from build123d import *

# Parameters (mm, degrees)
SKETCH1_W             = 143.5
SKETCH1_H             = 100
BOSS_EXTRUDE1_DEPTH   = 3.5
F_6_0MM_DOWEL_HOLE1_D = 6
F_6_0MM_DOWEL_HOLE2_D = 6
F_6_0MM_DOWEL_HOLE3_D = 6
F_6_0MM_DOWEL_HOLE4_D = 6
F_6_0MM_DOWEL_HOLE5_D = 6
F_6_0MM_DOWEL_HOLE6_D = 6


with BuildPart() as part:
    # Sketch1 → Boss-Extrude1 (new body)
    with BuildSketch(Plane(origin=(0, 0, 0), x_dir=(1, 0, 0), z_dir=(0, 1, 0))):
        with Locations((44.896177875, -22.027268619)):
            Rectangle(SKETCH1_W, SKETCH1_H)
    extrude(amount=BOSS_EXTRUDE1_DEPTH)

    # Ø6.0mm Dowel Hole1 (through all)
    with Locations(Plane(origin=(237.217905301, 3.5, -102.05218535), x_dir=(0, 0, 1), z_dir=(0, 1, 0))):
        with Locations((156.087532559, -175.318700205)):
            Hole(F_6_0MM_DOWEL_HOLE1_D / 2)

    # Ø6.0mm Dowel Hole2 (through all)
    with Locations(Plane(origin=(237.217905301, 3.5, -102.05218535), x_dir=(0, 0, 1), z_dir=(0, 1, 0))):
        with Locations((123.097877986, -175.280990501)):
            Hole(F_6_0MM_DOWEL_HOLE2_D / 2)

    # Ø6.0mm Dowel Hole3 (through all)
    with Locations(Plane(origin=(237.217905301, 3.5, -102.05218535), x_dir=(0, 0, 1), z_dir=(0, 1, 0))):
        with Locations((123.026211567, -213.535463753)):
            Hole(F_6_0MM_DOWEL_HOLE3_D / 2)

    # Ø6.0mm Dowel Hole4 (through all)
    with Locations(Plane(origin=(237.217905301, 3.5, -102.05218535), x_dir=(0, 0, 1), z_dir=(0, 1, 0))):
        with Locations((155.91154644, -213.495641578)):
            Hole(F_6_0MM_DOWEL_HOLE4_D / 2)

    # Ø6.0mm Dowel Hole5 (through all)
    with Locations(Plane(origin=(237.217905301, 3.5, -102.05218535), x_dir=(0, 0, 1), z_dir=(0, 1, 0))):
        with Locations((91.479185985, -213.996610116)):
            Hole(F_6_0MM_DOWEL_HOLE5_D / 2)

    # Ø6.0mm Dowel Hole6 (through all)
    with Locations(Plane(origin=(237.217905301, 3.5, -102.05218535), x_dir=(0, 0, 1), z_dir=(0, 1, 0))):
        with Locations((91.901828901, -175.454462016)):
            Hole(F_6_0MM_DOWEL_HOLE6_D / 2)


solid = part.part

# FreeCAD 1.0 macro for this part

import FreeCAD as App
import Part
import Sketcher
from FreeCAD import Vector

doc = App.newDocument("Part")
body = doc.addObject("PartDesign::Body", "Body")

sketch1 = doc.addObject("Sketcher::SketchObject", "Sketch")
body.addObject(sketch1)
sketch1.AttachmentSupport = (doc.XZ_Plane, [""])
sketch1.MapMode = "FlatFace"
sketch1.addGeometry(Part.LineSegment(Vector(-27, -28, 0), Vector(-27, 72, 0)), False)
sketch1.addGeometry(Part.LineSegment(Vector(-27, 72, 0), Vector(117, 72, 0)), False)
sketch1.addGeometry(Part.LineSegment(Vector(117, 72, 0), Vector(117, -28, 0)), False)
sketch1.addGeometry(Part.LineSegment(Vector(117, -28, 0), Vector(-27, -28, 0)), False)
sketch1.addConstraint(Sketcher.Constraint("Coincident", 0, 2, 1, 1))
sketch1.addConstraint(Sketcher.Constraint("Coincident", 1, 2, 2, 1))
sketch1.addConstraint(Sketcher.Constraint("Coincident", 2, 2, 3, 1))
sketch1.addConstraint(Sketcher.Constraint("Coincident", 3, 2, 0, 1))
sketch1.addConstraint(Sketcher.Constraint("Vertical", 0))
sketch1.addConstraint(Sketcher.Constraint("Horizontal", 1))
sketch1.addConstraint(Sketcher.Constraint("Vertical", 2))
sketch1.addConstraint(Sketcher.Constraint("Horizontal", 3))
sketch1.addConstraint(Sketcher.Constraint("DistanceY", 0, 1, 0, 2, 100.0))
sketch1.addConstraint(Sketcher.Constraint("DistanceX", 1, 1, 1, 2, 143.5))
sketch1.addConstraint(Sketcher.Constraint("DistanceY", -1, 1, 0, 2, 72.027269))
sketch1.addConstraint(Sketcher.Constraint("DistanceX", 0, 2, -1, 1, 26.853822))
pad1 = doc.addObject("PartDesign::Pad", "Pad")
body.addObject(pad1)
pad1.Profile = sketch1
pad1.Length = 3.5
pad1.Reversed = True

sketch2 = doc.addObject("Sketcher::SketchObject", "Sketch001")
body.addObject(sketch2)
sketch2.AttachmentSupport = (doc.XZ_Plane, [""])
sketch2.MapMode = "FlatFace"
sketch2.AttachmentOffset = App.Placement(Vector(0, 0, -3.5), App.Rotation())
sketch2.addGeometry(Part.Circle(Vector(61.9, 54, 0), Vector(0, 0, 1), 3), False)
sketch2.addConstraint(Sketcher.Constraint("Diameter", 0, 6.0))
sketch2.addConstraint(Sketcher.Constraint("DistanceX", -1, 1, 0, 3, 61.899205))
sketch2.addConstraint(Sketcher.Constraint("DistanceY", -1, 1, 0, 3, 54.035347))
doc.recompute()
hole = doc.addObject("PartDesign::Hole", "Hole")
body.addObject(hole)
hole.Profile = sketch2
hole.ThreadType = "None"
hole.Diameter = 6
hole.DepthType = "ThroughAll"
hole.Reversed = True

sketch3 = doc.addObject("Sketcher::SketchObject", "Sketch002")
body.addObject(sketch3)
sketch3.AttachmentSupport = (doc.XZ_Plane, [""])
sketch3.MapMode = "FlatFace"
sketch3.AttachmentOffset = App.Placement(Vector(0, 0, -3.5), App.Rotation())
sketch3.addGeometry(Part.Circle(Vector(61.9, 21, 0), Vector(0, 0, 1), 3), False)
sketch3.addConstraint(Sketcher.Constraint("Diameter", 0, 6.0))
sketch3.addConstraint(Sketcher.Constraint("DistanceX", -1, 1, 0, 3, 61.936915))
sketch3.addConstraint(Sketcher.Constraint("DistanceY", -1, 1, 0, 3, 21.045693))
doc.recompute()
hole2 = doc.addObject("PartDesign::Hole", "Hole001")
body.addObject(hole2)
hole2.Profile = sketch3
hole2.ThreadType = "None"
hole2.Diameter = 6
hole2.DepthType = "ThroughAll"
hole2.Reversed = True

sketch4 = doc.addObject("Sketcher::SketchObject", "Sketch003")
body.addObject(sketch4)
sketch4.AttachmentSupport = (doc.XZ_Plane, [""])
sketch4.MapMode = "FlatFace"
sketch4.AttachmentOffset = App.Placement(Vector(0, 0, -3.5), App.Rotation())
sketch4.addGeometry(Part.Circle(Vector(23.7, 21, 0), Vector(0, 0, 1), 3), False)
sketch4.addConstraint(Sketcher.Constraint("Diameter", 0, 6.0))
sketch4.addConstraint(Sketcher.Constraint("DistanceX", -1, 1, 0, 3, 23.682442))
sketch4.addConstraint(Sketcher.Constraint("DistanceY", -1, 1, 0, 3, 20.974026))
doc.recompute()
hole3 = doc.addObject("PartDesign::Hole", "Hole002")
body.addObject(hole3)
hole3.Profile = sketch4
hole3.ThreadType = "None"
hole3.Diameter = 6
hole3.DepthType = "ThroughAll"
hole3.Reversed = True

sketch5 = doc.addObject("Sketcher::SketchObject", "Sketch004")
body.addObject(sketch5)
sketch5.AttachmentSupport = (doc.XZ_Plane, [""])
sketch5.MapMode = "FlatFace"
sketch5.AttachmentOffset = App.Placement(Vector(0, 0, -3.5), App.Rotation())
sketch5.addGeometry(Part.Circle(Vector(23.7, 53.9, 0), Vector(0, 0, 1), 3), False)
sketch5.addConstraint(Sketcher.Constraint("Diameter", 0, 6.0))
sketch5.addConstraint(Sketcher.Constraint("DistanceY", -1, 1, 0, 3, 53.859361))
sketch5.addConstraint(Sketcher.Constraint("DistanceX", -1, 1, 0, 3, 23.722264))
doc.recompute()
hole4 = doc.addObject("PartDesign::Hole", "Hole003")
body.addObject(hole4)
hole4.Profile = sketch5
hole4.ThreadType = "None"
hole4.Diameter = 6
hole4.DepthType = "ThroughAll"
hole4.Reversed = True

sketch6 = doc.addObject("Sketcher::SketchObject", "Sketch005")
body.addObject(sketch6)
sketch6.AttachmentSupport = (doc.XZ_Plane, [""])
sketch6.MapMode = "FlatFace"
sketch6.AttachmentOffset = App.Placement(Vector(0, 0, -3.5), App.Rotation())
sketch6.addGeometry(Part.Circle(Vector(23.2, -10.6, 0), Vector(0, 0, 1), 3), False)
sketch6.addConstraint(Sketcher.Constraint("Diameter", 0, 6.0))
sketch6.addConstraint(Sketcher.Constraint("DistanceY", 0, 3, -1, 1, 10.572999))
sketch6.addConstraint(Sketcher.Constraint("DistanceX", -1, 1, 0, 3, 23.221295))
doc.recompute()
hole5 = doc.addObject("PartDesign::Hole", "Hole004")
body.addObject(hole5)
hole5.Profile = sketch6
hole5.ThreadType = "None"
hole5.Diameter = 6
hole5.DepthType = "ThroughAll"
hole5.Reversed = True

sketch7 = doc.addObject("Sketcher::SketchObject", "Sketch006")
body.addObject(sketch7)
sketch7.AttachmentSupport = (doc.XZ_Plane, [""])
sketch7.MapMode = "FlatFace"
sketch7.AttachmentOffset = App.Placement(Vector(0, 0, -3.5), App.Rotation())
sketch7.addGeometry(Part.Circle(Vector(61.8, -10.2, 0), Vector(0, 0, 1), 3), False)
sketch7.addConstraint(Sketcher.Constraint("Diameter", 0, 6.0))
sketch7.addConstraint(Sketcher.Constraint("DistanceX", -1, 1, 0, 3, 61.763443))
sketch7.addConstraint(Sketcher.Constraint("DistanceY", 0, 3, -1, 1, 10.150356))
doc.recompute()
hole6 = doc.addObject("PartDesign::Hole", "Hole005")
body.addObject(hole6)
hole6.Profile = sketch7
hole6.ThreadType = "None"
hole6.Diameter = 6
hole6.DepthType = "ThroughAll"
hole6.Reversed = True

doc.recompute()
